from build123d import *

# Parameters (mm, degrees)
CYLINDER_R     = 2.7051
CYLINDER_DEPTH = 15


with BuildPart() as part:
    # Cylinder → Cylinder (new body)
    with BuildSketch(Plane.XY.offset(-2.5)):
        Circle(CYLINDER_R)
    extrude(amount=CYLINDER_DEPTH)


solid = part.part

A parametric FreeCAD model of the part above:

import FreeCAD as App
import Part
import Sketcher

doc = App.newDocument("Part")
params = doc.addObject("Spreadsheet::Sheet", "Params")
for row, (alias, value) in enumerate([
    ("pad1_length", "15 mm"),
], start=1):
    params.set(f"A{row}", alias)
    params.set(f"B{row}", "=" + value)
    params.setAlias(f"B{row}", alias)

body = doc.addObject("PartDesign::Body", "Body")

sketch1 = doc.addObject("Sketcher::SketchObject", "Sketch")
body.addObject(sketch1)
sketch1.AttachmentSupport = (doc.XY_Plane, [""])
sketch1.MapMode = "FlatFace"
sketch1.AttachmentOffset = App.Placement(App.Vector(0, 0, -2.5), App.Rotation())
sketch1.addGeometry(Part.Circle(App.Vector(0, 0, 0), App.Vector(0, 0, 1), 2.7), False)
sketch1.addConstraint([
    Sketcher.Constraint("Coincident", 0, 3, -1, 1),
    Sketcher.Constraint("Diameter", 0, 5.4102),
])
pad1 = doc.addObject("PartDesign::Pad", "Pad")
body.addObject(pad1)
pad1.Profile = sketch1
pad1.setExpression("Length", "Params.pad1_length")

doc.recompute()
